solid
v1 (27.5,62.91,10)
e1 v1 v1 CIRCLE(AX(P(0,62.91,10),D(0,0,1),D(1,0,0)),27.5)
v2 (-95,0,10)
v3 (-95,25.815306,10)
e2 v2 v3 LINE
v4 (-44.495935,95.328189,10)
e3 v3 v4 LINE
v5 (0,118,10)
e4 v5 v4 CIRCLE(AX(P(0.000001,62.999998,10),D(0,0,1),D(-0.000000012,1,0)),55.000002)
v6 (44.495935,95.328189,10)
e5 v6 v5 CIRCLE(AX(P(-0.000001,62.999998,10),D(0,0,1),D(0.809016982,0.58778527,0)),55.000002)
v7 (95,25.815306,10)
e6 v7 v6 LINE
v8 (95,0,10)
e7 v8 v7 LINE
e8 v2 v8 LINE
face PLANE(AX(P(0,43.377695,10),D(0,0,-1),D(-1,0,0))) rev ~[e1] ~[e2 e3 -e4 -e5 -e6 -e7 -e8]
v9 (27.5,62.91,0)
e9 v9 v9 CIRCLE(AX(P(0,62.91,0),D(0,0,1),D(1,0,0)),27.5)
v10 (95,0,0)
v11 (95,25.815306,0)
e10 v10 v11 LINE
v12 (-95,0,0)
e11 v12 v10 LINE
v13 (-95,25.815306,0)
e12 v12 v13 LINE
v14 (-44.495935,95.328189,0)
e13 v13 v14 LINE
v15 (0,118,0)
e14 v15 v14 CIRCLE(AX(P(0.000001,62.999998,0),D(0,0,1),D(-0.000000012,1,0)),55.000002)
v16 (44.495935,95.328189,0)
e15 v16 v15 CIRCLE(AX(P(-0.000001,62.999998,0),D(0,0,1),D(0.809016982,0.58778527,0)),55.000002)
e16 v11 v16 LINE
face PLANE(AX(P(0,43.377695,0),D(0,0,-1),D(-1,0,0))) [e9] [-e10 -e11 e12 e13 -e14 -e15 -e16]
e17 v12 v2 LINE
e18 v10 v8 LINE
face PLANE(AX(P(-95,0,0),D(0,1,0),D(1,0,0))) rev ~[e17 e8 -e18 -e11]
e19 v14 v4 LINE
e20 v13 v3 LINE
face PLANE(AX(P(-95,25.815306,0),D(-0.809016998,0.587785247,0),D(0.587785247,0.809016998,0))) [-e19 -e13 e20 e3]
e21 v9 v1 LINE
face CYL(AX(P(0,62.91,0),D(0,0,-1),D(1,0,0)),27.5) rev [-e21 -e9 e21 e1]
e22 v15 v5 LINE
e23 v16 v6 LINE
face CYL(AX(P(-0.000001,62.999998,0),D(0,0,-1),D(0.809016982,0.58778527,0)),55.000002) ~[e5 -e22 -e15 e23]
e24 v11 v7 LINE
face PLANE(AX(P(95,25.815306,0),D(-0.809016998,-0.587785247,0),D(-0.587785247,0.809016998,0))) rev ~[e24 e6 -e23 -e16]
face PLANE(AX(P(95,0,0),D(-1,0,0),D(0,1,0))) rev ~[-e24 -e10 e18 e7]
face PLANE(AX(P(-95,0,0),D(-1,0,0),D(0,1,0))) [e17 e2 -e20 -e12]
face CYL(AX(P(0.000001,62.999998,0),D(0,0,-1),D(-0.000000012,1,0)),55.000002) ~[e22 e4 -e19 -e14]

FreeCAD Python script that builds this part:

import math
import FreeCAD as App
import Part
import Sketcher
from FreeCAD import Vector
Q = App.Units.Quantity

doc = App.newDocument("Part")
body = doc.addObject("PartDesign::Body", "Body")

# Sketch on XY plane
sketch1 = body.newObject("Sketcher::SketchObject", "Sketch")
sketch1.AttachmentSupport = (doc.getObject("XY_Plane"), [""])
sketch1.MapMode = "FlatFace"
sketch1.addGeometry(Part.LineSegment(Vector(-95, 26, 0), Vector(-95, 0, 0)), False)
sketch1.addGeometry(Part.LineSegment(Vector(-95, 0, 0), Vector(95, 0, 0)), False)
sketch1.addGeometry(Part.LineSegment(Vector(95, 0, 0), Vector(95, 26, 0)), False)
sketch1.addGeometry(Part.LineSegment(Vector(95, 26, 0), Vector(44, 95, 0)), False)
sketch1.addGeometry(Part.ArcOfCircle(Part.Circle(Vector(0, 63, 0), Vector(0, 0, 1), 55), math.radians(36), math.radians(90)), False)
sketch1.addGeometry(Part.ArcOfCircle(Part.Circle(Vector(0, 63, 0), Vector(0, 0, 1), 55), math.radians(90), math.radians(144)), False)
sketch1.addGeometry(Part.LineSegment(Vector(-44, 95, 0), Vector(-95, 26, 0)), False)
sketch1.addGeometry(Part.Circle(Vector(0, 63, 0), Vector(0, 0, 1), 28), False)
sketch1.addConstraint(Sketcher.Constraint("Coincident", 0, 2, 1, 1))
sketch1.addConstraint(Sketcher.Constraint("Coincident", 1, 2, 2, 1))
sketch1.addConstraint(Sketcher.Constraint("Coincident", 2, 2, 3, 1))
sketch1.addConstraint(Sketcher.Constraint("Tangent", 3, 2, 4, 1))
sketch1.addConstraint(Sketcher.Constraint("Tangent", 4, 2, 5, 1))
sketch1.addConstraint(Sketcher.Constraint("Tangent", 5, 2, 6, 1))
sketch1.addConstraint(Sketcher.Constraint("Coincident", 6, 2, 0, 1))
sketch1.addConstraint(Sketcher.Constraint("Vertical", 0))
sketch1.addConstraint(Sketcher.Constraint("Horizontal", 1))
sketch1.addConstraint(Sketcher.Constraint("Vertical", 2))
sketch1.addConstraint(Sketcher.Constraint("Equal", 4, 5))
sketch1.addConstraint(Sketcher.Constraint("Symmetric", 0, 2, 1, 2, -1, 1))
sketch1.addConstraint(Sketcher.Constraint("Symmetric", 3, 2, 5, 2, -2))
sketch1.addConstraint(Sketcher.Constraint("PointOnObject", 7, 3, -2))
sketch1.addConstraint(Sketcher.Constraint("PointOnObject", 4, 2, -2))
sketch1.addConstraint(Sketcher.Constraint("Diameter", 7, 55.0))
sketch1.addConstraint(Sketcher.Constraint("DistanceX", 1, 1, 1, 2, 190.0))
sketch1.addConstraint(Sketcher.Constraint("Angle", 3, Q("126 deg")))
sketch1.addConstraint(Sketcher.Constraint("DistanceY", -1, 1, 4, 2, 118.0))
sketch1.addConstraint(Sketcher.Constraint("DistanceY", -1, 1, 7, 3, 62.91))
sketch1.addConstraint(Sketcher.Constraint("Radius", 4, 55.000002))
pad1 = body.newObject("PartDesign::Pad", "Pad")
pad1.Profile = sketch1
pad1.Length = 10

doc.recompute()
